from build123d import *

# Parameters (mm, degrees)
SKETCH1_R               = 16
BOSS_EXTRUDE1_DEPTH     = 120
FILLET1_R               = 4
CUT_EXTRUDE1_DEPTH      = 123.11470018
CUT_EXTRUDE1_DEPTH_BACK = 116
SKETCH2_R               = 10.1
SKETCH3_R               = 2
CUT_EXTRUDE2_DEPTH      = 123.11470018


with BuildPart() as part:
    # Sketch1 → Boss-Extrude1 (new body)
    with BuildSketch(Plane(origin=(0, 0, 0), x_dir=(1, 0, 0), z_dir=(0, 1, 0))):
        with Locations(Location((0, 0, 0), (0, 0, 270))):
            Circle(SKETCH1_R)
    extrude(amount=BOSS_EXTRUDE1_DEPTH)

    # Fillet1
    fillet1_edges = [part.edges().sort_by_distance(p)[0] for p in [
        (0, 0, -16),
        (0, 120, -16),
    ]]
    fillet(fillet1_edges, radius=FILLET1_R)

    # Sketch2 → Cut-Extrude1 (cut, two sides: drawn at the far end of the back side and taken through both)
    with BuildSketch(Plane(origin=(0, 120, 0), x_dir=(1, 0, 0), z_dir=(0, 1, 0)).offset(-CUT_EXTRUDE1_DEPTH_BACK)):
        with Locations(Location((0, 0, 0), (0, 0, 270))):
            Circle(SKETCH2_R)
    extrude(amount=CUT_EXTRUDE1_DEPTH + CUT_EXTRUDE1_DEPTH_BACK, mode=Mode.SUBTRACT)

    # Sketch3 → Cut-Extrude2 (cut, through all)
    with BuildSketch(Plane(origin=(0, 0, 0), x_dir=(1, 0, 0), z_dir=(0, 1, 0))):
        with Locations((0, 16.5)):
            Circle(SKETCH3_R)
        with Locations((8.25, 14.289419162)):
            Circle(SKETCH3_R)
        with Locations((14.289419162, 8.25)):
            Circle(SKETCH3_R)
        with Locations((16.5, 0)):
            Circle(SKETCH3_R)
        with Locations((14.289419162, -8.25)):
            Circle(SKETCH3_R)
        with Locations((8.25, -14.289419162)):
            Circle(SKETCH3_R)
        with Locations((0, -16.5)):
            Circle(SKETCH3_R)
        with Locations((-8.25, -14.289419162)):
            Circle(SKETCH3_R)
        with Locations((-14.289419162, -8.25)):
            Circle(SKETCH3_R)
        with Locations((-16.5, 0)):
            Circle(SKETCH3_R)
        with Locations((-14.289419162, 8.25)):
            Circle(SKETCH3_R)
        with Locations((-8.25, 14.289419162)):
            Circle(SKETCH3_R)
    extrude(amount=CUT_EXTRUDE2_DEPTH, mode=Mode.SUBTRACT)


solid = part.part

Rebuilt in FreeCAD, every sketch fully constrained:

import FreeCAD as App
import Part
import Sketcher


def edges_at(feature, points):
    """Names of the edges that pass closest to the given points."""
    edges = feature.Shape.Edges
    near = lambda p: min(range(len(edges)), key=lambda i: edges[i].distToShape(Part.Vertex(*p))[0])
    return sorted({f"Edge{near(p) + 1}" for p in points})

doc = App.newDocument("Part")
body = doc.addObject("PartDesign::Body", "Body")

# Sketch on XZ plane
sketch1 = body.newObject("Sketcher::SketchObject", "Sketch")
sketch1.AttachmentSupport = (doc.getObject("XZ_Plane"), [""])
sketch1.MapMode = "FlatFace"
sketch1.addGeometry(Part.Circle(App.Vector(0, 0, 0), App.Vector(0, 0, 1), 16), False)
sketch1.addConstraint(Sketcher.Constraint("Coincident", 0, 3, -1, 1))
sketch1.addConstraint(Sketcher.Constraint("Diameter", 0, 32.0))
pad1 = body.newObject("PartDesign::Pad", "Pad")
pad1.Profile = sketch1
pad1.Length = 120
pad1.Reversed = True
doc.recompute()

fillet = body.newObject("PartDesign::Fillet", "Fillet")
fillet.Base = (pad1, edges_at(pad1, [(0, 0, -16), (0, 120, -16)]))
fillet.Radius = 4

# Sketch on XZ plane
sketch2 = body.newObject("Sketcher::SketchObject", "Sketch001")
sketch2.AttachmentSupport = (doc.getObject("XZ_Plane"), [""])
sketch2.MapMode = "FlatFace"
sketch2.AttachmentOffset = App.Placement(App.Vector(0, 0, -120), App.Rotation())
sketch2.addGeometry(Part.Circle(App.Vector(0, 0, 0), App.Vector(0, 0, 1), 10), False)
sketch2.addConstraint(Sketcher.Constraint("Coincident", 0, 3, -1, 1))
sketch2.addConstraint(Sketcher.Constraint("Diameter", 0, 20.2))
pocket1 = body.newObject("PartDesign::Pocket", "Pocket")
pocket1.Profile = sketch2
pocket1.Type = "TwoLengths"
pocket1.Length = 123.1147
pocket1.Length2 = 116

# Sketch on XZ plane
sketch3 = body.newObject("Sketcher::SketchObject", "Sketch002")
sketch3.AttachmentSupport = (doc.getObject("XZ_Plane"), [""])
sketch3.MapMode = "FlatFace"
sketch3.addGeometry(Part.Circle(App.Vector(0, -16.5, 0), App.Vector(0, 0, 1), 2), False)
sketch3.addGeometry(Part.Circle(App.Vector(8.2, -14.3, 0), App.Vector(0, 0, 1), 2), False)
sketch3.addGeometry(Part.Circle(App.Vector(14.3, -8.2, 0), App.Vector(0, 0, 1), 2), False)
sketch3.addGeometry(Part.Circle(App.Vector(16.5, 0, 0), App.Vector(0, 0, 1), 2), False)
sketch3.addGeometry(Part.Circle(App.Vector(14.3, 8.2, 0), App.Vector(0, 0, 1), 2), False)
sketch3.addGeometry(Part.Circle(App.Vector(8.2, 14.3, 0), App.Vector(0, 0, 1), 2), False)
sketch3.addGeometry(Part.Circle(App.Vector(0, 16.5, 0), App.Vector(0, 0, 1), 2), False)
sketch3.addGeometry(Part.Circle(App.Vector(-8.2, 14.3, 0), App.Vector(0, 0, 1), 2), False)
sketch3.addGeometry(Part.Circle(App.Vector(-14.3, 8.2, 0), App.Vector(0, 0, 1), 2), False)
sketch3.addGeometry(Part.Circle(App.Vector(-16.5, 0, 0), App.Vector(0, 0, 1), 2), False)
sketch3.addGeometry(Part.Circle(App.Vector(-14.3, -8.2, 0), App.Vector(0, 0, 1), 2), False)
sketch3.addGeometry(Part.Circle(App.Vector(-8.2, -14.3, 0), App.Vector(0, 0, 1), 2), False)
sketch3.addConstraint(Sketcher.Constraint("Equal", 0, 1))
sketch3.addConstraint(Sketcher.Constraint("Equal", 1, 2))
sketch3.addConstraint(Sketcher.Constraint("Equal", 2, 3))
sketch3.addConstraint(Sketcher.Constraint("Equal", 3, 4))
sketch3.addConstraint(Sketcher.Constraint("Equal", 4, 5))
sketch3.addConstraint(Sketcher.Constraint("Equal", 5, 6))
sketch3.addConstraint(Sketcher.Constraint("Equal", 6, 7))
sketch3.addConstraint(Sketcher.Constraint("Equal", 7, 8))
sketch3.addConstraint(Sketcher.Constraint("Equal", 8, 9))
sketch3.addConstraint(Sketcher.Constraint("Equal", 9, 10))
sketch3.addConstraint(Sketcher.Constraint("Equal", 10, 11))
sketch3.addConstraint(Sketcher.Constraint("Symmetric", 0, 3, 6, 3, -1, 1))
sketch3.addConstraint(Sketcher.Constraint("Symmetric", 1, 3, 7, 3, -1, 1))
sketch3.addConstraint(Sketcher.Constraint("Symmetric", 2, 3, 8, 3, -1, 1))
sketch3.addConstraint(Sketcher.Constraint("Symmetric", 3, 3, 9, 3, -1, 1))
sketch3.addConstraint(Sketcher.Constraint("Symmetric", 4, 3, 10, 3, -1, 1))
sketch3.addConstraint(Sketcher.Constraint("Symmetric", 5, 3, 11, 3, -1, 1))
sketch3.addConstraint(Sketcher.Constraint("Symmetric", 5, 3, 7, 3, -2))
sketch3.addConstraint(Sketcher.Constraint("Symmetric", 4, 3, 8, 3, -2))
sketch3.addConstraint(Sketcher.Constraint("PointOnObject", 0, 3, -2))
sketch3.addConstraint(Sketcher.Constraint("PointOnObject", 3, 3, -1))
sketch3.addConstraint(Sketcher.Constraint("Diameter", 0, 4.0))
sketch3.addConstraint(Sketcher.Constraint("DistanceY", 0, 3, -1, 1, 16.5))
sketch3.addConstraint(Sketcher.Constraint("DistanceX", -1, 1, 3, 3, 16.5))
sketch3.addConstraint(Sketcher.Constraint("DistanceY", 2, 3, 4, 3, 16.5))
sketch3.addConstraint(Sketcher.Constraint("DistanceX", 7, 3, 5, 3, 16.5))
sketch3.addConstraint(Sketcher.Constraint("DistanceY", 1, 3, -1, 1, 14.289419))
sketch3.addConstraint(Sketcher.Constraint("DistanceX", -1, 1, 2, 3, 14.289419))
pocket2 = body.newObject("PartDesign::Pocket", "Pocket001")
pocket2.Profile = sketch3
pocket2.Type = "ThroughAll"

doc.recompute()
